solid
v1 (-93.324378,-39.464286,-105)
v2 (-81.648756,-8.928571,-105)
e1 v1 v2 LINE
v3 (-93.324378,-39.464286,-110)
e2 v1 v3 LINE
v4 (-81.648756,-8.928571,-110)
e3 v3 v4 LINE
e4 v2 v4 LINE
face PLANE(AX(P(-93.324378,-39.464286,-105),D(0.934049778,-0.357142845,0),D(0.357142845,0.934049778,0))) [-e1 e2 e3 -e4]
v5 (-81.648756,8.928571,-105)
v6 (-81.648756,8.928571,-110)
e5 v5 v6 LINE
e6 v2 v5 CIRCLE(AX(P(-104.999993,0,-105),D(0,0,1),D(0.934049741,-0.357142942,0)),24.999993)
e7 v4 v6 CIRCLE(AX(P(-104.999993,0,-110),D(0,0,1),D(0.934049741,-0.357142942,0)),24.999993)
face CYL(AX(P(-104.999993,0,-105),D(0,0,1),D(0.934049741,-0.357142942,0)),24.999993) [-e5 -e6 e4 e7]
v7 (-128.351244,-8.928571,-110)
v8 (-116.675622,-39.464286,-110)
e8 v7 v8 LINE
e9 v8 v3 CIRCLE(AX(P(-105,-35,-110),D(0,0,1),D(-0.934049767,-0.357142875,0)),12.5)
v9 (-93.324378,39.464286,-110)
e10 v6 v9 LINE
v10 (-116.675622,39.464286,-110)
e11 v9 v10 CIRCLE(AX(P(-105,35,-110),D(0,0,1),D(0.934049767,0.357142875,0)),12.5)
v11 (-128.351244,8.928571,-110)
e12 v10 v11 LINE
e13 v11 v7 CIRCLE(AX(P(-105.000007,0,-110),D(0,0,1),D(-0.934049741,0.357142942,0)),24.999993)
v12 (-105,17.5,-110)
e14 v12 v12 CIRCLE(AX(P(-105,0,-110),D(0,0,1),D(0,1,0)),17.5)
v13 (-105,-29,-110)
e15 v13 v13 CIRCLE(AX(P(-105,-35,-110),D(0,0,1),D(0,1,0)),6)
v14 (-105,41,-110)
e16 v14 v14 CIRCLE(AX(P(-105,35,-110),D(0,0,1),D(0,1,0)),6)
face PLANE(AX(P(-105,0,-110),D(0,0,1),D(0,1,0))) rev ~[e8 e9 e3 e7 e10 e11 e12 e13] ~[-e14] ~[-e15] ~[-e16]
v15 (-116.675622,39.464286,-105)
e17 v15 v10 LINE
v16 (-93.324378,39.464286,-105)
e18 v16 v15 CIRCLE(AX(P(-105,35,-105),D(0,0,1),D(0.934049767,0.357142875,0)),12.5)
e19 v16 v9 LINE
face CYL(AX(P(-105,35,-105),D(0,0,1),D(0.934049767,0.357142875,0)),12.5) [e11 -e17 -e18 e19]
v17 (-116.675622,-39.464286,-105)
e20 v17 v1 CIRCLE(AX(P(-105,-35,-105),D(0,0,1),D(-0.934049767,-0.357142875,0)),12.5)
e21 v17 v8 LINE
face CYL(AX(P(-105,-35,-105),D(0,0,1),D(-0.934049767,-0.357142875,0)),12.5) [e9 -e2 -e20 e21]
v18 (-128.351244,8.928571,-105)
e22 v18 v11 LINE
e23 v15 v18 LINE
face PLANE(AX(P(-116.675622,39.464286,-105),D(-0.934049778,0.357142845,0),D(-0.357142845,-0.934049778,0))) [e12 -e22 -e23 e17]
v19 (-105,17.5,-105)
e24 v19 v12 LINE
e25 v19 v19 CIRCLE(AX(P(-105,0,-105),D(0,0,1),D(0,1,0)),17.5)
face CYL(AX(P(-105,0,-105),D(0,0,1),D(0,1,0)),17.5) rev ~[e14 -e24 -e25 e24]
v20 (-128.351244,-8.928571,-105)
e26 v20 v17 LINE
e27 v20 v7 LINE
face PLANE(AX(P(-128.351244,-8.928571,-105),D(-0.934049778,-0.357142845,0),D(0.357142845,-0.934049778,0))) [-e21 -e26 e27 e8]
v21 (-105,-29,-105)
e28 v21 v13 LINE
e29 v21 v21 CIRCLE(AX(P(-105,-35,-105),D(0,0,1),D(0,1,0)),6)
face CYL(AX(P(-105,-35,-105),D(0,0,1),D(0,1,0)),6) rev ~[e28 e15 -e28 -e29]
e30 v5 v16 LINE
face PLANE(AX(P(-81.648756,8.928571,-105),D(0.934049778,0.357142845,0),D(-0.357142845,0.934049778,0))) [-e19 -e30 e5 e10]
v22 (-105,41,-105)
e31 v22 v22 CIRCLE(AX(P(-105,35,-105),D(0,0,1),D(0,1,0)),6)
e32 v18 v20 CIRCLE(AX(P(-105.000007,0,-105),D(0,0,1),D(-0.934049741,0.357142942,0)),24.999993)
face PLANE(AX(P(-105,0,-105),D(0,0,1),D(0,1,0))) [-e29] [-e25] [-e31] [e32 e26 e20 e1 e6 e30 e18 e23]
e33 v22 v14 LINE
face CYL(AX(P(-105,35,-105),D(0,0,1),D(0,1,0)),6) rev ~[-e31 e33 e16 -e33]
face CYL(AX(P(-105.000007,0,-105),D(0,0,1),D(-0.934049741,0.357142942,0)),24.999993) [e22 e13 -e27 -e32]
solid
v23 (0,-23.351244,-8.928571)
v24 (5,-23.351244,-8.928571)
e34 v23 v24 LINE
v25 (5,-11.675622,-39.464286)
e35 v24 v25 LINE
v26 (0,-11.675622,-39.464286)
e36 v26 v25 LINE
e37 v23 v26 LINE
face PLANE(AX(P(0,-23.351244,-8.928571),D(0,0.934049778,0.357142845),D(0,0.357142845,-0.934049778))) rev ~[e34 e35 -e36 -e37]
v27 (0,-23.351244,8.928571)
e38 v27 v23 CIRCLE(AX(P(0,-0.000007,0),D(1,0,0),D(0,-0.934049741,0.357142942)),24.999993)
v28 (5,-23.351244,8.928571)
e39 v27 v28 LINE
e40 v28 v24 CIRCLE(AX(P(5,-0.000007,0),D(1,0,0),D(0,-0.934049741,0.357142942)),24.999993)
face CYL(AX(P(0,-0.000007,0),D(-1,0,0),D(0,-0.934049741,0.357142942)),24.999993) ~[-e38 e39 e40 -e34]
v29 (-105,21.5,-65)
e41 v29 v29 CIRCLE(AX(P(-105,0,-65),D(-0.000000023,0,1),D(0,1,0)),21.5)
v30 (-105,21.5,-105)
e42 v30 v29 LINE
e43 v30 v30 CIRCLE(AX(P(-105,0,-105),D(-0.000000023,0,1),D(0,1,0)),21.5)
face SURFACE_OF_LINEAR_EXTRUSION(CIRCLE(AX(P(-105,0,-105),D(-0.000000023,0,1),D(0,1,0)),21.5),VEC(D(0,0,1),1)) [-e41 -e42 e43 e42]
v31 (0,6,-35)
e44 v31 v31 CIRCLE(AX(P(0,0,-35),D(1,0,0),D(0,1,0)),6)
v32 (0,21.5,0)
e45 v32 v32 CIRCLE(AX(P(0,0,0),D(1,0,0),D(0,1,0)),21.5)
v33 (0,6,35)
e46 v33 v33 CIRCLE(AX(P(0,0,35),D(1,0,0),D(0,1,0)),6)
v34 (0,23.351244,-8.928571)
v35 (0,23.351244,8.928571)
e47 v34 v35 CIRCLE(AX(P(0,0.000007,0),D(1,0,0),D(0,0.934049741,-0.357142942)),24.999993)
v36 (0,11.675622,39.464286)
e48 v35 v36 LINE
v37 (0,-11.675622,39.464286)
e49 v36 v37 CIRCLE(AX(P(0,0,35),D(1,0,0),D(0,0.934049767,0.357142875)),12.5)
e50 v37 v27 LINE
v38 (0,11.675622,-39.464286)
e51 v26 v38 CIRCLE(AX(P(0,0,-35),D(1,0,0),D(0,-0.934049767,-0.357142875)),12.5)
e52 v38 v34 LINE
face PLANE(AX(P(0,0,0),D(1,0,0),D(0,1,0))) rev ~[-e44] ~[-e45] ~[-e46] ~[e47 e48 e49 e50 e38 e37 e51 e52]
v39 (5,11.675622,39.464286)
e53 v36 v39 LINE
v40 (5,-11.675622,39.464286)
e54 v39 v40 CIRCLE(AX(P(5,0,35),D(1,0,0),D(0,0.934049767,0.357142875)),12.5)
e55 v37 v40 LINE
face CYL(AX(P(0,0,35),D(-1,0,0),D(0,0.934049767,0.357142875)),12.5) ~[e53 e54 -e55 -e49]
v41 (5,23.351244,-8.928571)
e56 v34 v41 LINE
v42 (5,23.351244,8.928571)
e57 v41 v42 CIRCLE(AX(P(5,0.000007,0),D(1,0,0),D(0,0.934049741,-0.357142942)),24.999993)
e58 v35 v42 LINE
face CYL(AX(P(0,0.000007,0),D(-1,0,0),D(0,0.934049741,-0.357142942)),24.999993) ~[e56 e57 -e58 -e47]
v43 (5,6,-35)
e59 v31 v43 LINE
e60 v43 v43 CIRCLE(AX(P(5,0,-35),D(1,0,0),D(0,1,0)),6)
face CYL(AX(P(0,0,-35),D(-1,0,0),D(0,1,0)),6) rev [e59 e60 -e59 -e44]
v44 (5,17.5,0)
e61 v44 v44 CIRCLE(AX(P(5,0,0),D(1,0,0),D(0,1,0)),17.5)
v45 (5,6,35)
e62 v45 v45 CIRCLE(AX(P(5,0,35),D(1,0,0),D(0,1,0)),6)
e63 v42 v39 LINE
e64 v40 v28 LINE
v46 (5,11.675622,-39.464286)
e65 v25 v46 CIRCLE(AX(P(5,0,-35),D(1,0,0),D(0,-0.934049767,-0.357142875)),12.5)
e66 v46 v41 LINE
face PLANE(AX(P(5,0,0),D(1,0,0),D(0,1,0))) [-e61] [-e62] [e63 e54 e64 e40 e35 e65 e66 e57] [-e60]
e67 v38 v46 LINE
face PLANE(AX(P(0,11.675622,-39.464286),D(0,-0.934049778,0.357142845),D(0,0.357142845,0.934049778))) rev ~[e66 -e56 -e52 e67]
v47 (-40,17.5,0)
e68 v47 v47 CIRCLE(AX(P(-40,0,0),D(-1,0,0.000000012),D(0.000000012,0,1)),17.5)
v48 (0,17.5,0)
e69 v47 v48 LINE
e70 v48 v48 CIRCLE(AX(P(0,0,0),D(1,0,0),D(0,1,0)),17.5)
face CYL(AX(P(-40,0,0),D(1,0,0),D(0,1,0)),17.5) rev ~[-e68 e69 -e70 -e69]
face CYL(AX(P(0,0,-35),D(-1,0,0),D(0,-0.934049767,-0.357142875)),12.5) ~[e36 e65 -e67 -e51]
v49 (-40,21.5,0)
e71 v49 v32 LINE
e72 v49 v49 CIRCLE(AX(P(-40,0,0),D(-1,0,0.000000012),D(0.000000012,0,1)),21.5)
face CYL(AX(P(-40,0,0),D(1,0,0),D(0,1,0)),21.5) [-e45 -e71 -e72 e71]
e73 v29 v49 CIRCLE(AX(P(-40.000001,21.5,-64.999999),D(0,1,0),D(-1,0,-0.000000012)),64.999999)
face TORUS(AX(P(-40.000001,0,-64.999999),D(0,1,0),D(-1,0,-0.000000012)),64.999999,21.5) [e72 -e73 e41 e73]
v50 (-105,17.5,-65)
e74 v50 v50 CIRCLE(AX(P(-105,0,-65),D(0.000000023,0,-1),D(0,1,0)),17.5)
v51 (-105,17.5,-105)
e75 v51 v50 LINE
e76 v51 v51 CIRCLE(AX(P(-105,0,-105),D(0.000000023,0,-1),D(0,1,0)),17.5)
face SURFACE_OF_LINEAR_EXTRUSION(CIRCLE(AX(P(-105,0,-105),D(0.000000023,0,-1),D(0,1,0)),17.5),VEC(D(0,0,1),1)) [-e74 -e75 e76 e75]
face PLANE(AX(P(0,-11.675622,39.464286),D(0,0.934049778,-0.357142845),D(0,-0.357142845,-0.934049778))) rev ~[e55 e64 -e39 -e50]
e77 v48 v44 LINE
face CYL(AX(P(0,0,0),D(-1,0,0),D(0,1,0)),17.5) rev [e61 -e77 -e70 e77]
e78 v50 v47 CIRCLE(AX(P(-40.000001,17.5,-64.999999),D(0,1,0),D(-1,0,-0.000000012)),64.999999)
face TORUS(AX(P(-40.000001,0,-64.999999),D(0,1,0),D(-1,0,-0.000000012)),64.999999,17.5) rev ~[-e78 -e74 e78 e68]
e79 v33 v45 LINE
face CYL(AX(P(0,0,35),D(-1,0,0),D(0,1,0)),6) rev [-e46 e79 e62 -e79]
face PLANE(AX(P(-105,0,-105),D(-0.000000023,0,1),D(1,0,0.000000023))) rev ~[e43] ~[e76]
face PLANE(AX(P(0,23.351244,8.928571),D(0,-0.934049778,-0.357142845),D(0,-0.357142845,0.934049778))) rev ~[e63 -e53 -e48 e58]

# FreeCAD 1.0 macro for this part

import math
import FreeCAD as App
import Part
import Sketcher

V = App.Vector

doc = App.newDocument("Part")
params = doc.addObject("Spreadsheet::Sheet", "Params")
for row, (alias, value) in enumerate([
    ("sketch1_diameter", "43 mm"),
    ("sketch1_diameter2", "35 mm"),
    ("sketch2_radius", "64.999999 mm"),
    ("sketch2_width", "40 mm"),
    ("sketch3_diameter", "12 mm"),
    ("sketch3_diameter2", "35 mm"),
    ("sketch3_radius", "12.5 mm"),
    ("pad1_length", "5 mm"),
    ("sketch4_diameter", "12 mm"),
    ("sketch4_diameter2", "35 mm"),
    ("sketch4_radius", "12.5 mm"),
    ("pad2_length", "5 mm"),
], start=1):
    params.set(f"A{row}", alias)
    params.set(f"B{row}", "=" + value)
    params.setAlias(f"B{row}", alias)

body = doc.addObject("PartDesign::Body", "Body")

# Sketch on YZ plane
sketch1 = body.newObject("Sketcher::SketchObject", "Sketch")
sketch1.AttachmentSupport = (doc.getObject("YZ_Plane"), [""])
sketch1.MapMode = "FlatFace"
sketch1.addGeometry(Part.Circle(V(0, 0, 0), V(0, 0, 1), 21.5), False)
sketch1.addGeometry(Part.Circle(V(0, 0, 0), V(0, 0, 1), 17.5), False)
sketch1.addConstraint(Sketcher.Constraint("Coincident", 0, 3, -1, 1))
sketch1.addConstraint(Sketcher.Constraint("Coincident", 1, 3, -1, 1))
sketch1.addConstraint(Sketcher.Constraint("Diameter", 0, 43.0))
sketch1.addConstraint(Sketcher.Constraint("Diameter", 1, 35.0))
sketch1.setExpression("Constraints[2]", "Params.sketch1_diameter")
sketch1.setExpression("Constraints[3]", "Params.sketch1_diameter2")

# Sketch on XZ plane
sketch2 = body.newObject("Sketcher::SketchObject", "Sketch001")
sketch2.AttachmentSupport = (doc.getObject("XZ_Plane"), [""])
sketch2.MapMode = "FlatFace"
sketch2.addGeometry(Part.LineSegment(V(-105, -105, 0), V(-105, -65, 0)), False)
sketch2.addGeometry(Part.ArcOfCircle(Part.Circle(V(-40.000001, -64.999999, 0), V(0, 0, 1), 64.999999), math.radians(89.999999), math.radians(180.000001)), False)
sketch2.addGeometry(Part.LineSegment(V(-40, 0, 0), V(0, 0, 0)), False)
sketch2.addConstraint(Sketcher.Constraint("Tangent", 0, 2, 1, 2))
sketch2.addConstraint(Sketcher.Constraint("Tangent", 1, 1, 2, 1))
sketch2.addConstraint(Sketcher.Constraint("Vertical", 0))
sketch2.addConstraint(Sketcher.Constraint("Horizontal", 2))
sketch2.addConstraint(Sketcher.Constraint("Coincident", 2, 2, -1, 1))
sketch2.addConstraint(Sketcher.Constraint("Equal", 2, 0))
sketch2.addConstraint(Sketcher.Constraint("Radius", 1, 64.999999))
sketch2.addConstraint(Sketcher.Constraint("DistanceX", 2, 1, 2, 2, 40.0))
sketch2.setExpression("Constraints[6]", "Params.sketch2_radius")
sketch2.setExpression("Constraints[7]", "Params.sketch2_width")
doc.recompute()

additivepipe = body.newObject("PartDesign::AdditivePipe", "AdditivePipe")
additivepipe.Profile = sketch1
additivepipe.Spine = (sketch2, ["Edge1", "Edge2", "Edge3"])

# Sketch on YZ plane
sketch3 = body.newObject("Sketcher::SketchObject", "Sketch002")
sketch3.AttachmentSupport = (doc.getObject("YZ_Plane"), [""])
sketch3.MapMode = "FlatFace"
sketch3.addGeometry(Part.LineSegment(V(-11.675622, 39.464286, 0), V(-23.351244, 8.928571, 0)), False)
sketch3.addGeometry(Part.ArcOfCircle(Part.Circle(V(-0.000007, 0, 0), V(0, 0, 1), 24.999993), math.radians(159.075162), math.radians(200.924838)), False)
sketch3.addGeometry(Part.LineSegment(V(-23.351244, -8.928571, 0), V(-11.675622, -39.464286, 0)), False)
sketch3.addGeometry(Part.ArcOfCircle(Part.Circle(V(0, -35, 0), V(0, 0, 1), 12.5), math.radians(-159.075166), math.radians(-20.924834)), False)
sketch3.addGeometry(Part.LineSegment(V(11.675622, -39.464286, 0), V(23.351244, -8.928571, 0)), False)
sketch3.addGeometry(Part.ArcOfCircle(Part.Circle(V(0.000007, 0, 0), V(0, 0, 1), 24.999993), math.radians(-20.924838), math.radians(20.924838)), False)
sketch3.addGeometry(Part.LineSegment(V(23.351244, 8.928571, 0), V(11.675622, 39.464286, 0)), False)
sketch3.addGeometry(Part.ArcOfCircle(Part.Circle(V(0, 35, 0), V(0, 0, 1), 12.5), math.radians(20.924834), math.radians(159.075166)), False)
sketch3.addGeometry(Part.Circle(V(0, -35, 0), V(0, 0, 1), 6), False)
sketch3.addGeometry(Part.Circle(V(0, 0, 0), V(0, 0, 1), 17.5), False)
sketch3.addGeometry(Part.Circle(V(0, 35, 0), V(0, 0, 1), 6), False)
sketch3.addConstraint(Sketcher.Constraint("Tangent", 0, 2, 1, 1))
sketch3.addConstraint(Sketcher.Constraint("Tangent", 1, 2, 2, 1))
sketch3.addConstraint(Sketcher.Constraint("Tangent", 2, 2, 3, 1))
sketch3.addConstraint(Sketcher.Constraint("Tangent", 3, 2, 4, 1))
sketch3.addConstraint(Sketcher.Constraint("Tangent", 4, 2, 5, 1))
sketch3.addConstraint(Sketcher.Constraint("Tangent", 5, 2, 6, 1))
sketch3.addConstraint(Sketcher.Constraint("Tangent", 6, 2, 7, 1))
sketch3.addConstraint(Sketcher.Constraint("Tangent", 7, 2, 0, 1))
sketch3.addConstraint(Sketcher.Constraint("Coincident", 1, 3, -1, 1))
sketch3.addConstraint(Sketcher.Constraint("Coincident", 5, 3, -1, 1))
sketch3.addConstraint(Sketcher.Constraint("Coincident", 9, 3, -1, 1))
sketch3.addConstraint(Sketcher.Constraint("Coincident", 8, 3, 3, 3))
sketch3.addConstraint(Sketcher.Constraint("Coincident", 10, 3, 7, 3))
sketch3.addConstraint(Sketcher.Constraint("Equal", 1, 5))
sketch3.addConstraint(Sketcher.Constraint("Equal", 3, 7))
sketch3.addConstraint(Sketcher.Constraint("Equal", 8, 10))
sketch3.addConstraint(Sketcher.Constraint("Symmetric", 3, 3, 7, 3, -1, 1))
sketch3.addConstraint(Sketcher.Constraint("PointOnObject", 3, 3, -2))
sketch3.addConstraint(Sketcher.Constraint("Diameter", 8, 12.0))
sketch3.addConstraint(Sketcher.Constraint("Diameter", 9, 35.0))
sketch3.addConstraint(Sketcher.Constraint("Radius", 3, 12.5))
sketch3.addConstraint(Sketcher.Constraint("DistanceY", 3, 3, -1, 1, 35.0))
sketch3.addConstraint(Sketcher.Constraint("Radius", 1, 24.999993))
sketch3.setExpression("Constraints[18]", "Params.sketch3_diameter")
sketch3.setExpression("Constraints[19]", "Params.sketch3_diameter2")
sketch3.setExpression("Constraints[20]", "Params.sketch3_radius")
pad1 = body.newObject("PartDesign::Pad", "Pad")
pad1.Profile = sketch3
pad1.setExpression("Length", "Params.pad1_length")
body2 = doc.addObject("PartDesign::Body", "Body001")

# Sketch on XY plane
sketch4 = body2.newObject("Sketcher::SketchObject", "Sketch003")
sketch4.AttachmentSupport = (doc.getObject("XY_Plane001"), [""])
sketch4.MapMode = "FlatFace"
sketch4.AttachmentOffset = App.Placement(V(0, 0, -105), App.Rotation())
sketch4.addGeometry(Part.LineSegment(V(-93.324378, -39.464286, 0), V(-81.648756, -8.928571, 0)), False)
sketch4.addGeometry(Part.ArcOfCircle(Part.Circle(V(-104.999993, 0, 0), V(0, 0, 1), 24.999993), math.radians(-20.924838), math.radians(20.924838)), False)
sketch4.addGeometry(Part.LineSegment(V(-81.648756, 8.928571, 0), V(-93.324378, 39.464286, 0)), False)
sketch4.addGeometry(Part.ArcOfCircle(Part.Circle(V(-105, 35, 0), V(0, 0, 1), 12.5), math.radians(20.924834), math.radians(159.075166)), False)
sketch4.addGeometry(Part.LineSegment(V(-116.675622, 39.464286, 0), V(-128.351244, 8.928571, 0)), False)
sketch4.addGeometry(Part.ArcOfCircle(Part.Circle(V(-105.000007, 0, 0), V(0, 0, 1), 24.999993), math.radians(159.075162), math.radians(200.924838)), False)
sketch4.addGeometry(Part.LineSegment(V(-128.351244, -8.928571, 0), V(-116.675622, -39.464286, 0)), False)
sketch4.addGeometry(Part.ArcOfCircle(Part.Circle(V(-105, -35, 0), V(0, 0, 1), 12.5), math.radians(-159.075166), math.radians(-20.924834)), False)
sketch4.addGeometry(Part.Circle(V(-105, -35, 0), V(0, 0, 1), 6), False)
sketch4.addGeometry(Part.Circle(V(-105, 0, 0), V(0, 0, 1), 17.5), False)
sketch4.addGeometry(Part.Circle(V(-105, 35, 0), V(0, 0, 1), 6), False)
sketch4.addConstraint(Sketcher.Constraint("Tangent", 0, 2, 1, 1))
sketch4.addConstraint(Sketcher.Constraint("Tangent", 1, 2, 2, 1))
sketch4.addConstraint(Sketcher.Constraint("Tangent", 2, 2, 3, 1))
sketch4.addConstraint(Sketcher.Constraint("Tangent", 3, 2, 4, 1))
sketch4.addConstraint(Sketcher.Constraint("Tangent", 4, 2, 5, 1))
sketch4.addConstraint(Sketcher.Constraint("Tangent", 5, 2, 6, 1))
sketch4.addConstraint(Sketcher.Constraint("Tangent", 6, 2, 7, 1))
sketch4.addConstraint(Sketcher.Constraint("Tangent", 7, 2, 0, 1))
sketch4.addConstraint(Sketcher.Constraint("Coincident", 8, 3, 7, 3))
sketch4.addConstraint(Sketcher.Constraint("Coincident", 9, 3, 1, 3))
sketch4.addConstraint(Sketcher.Constraint("Coincident", 10, 3, 3, 3))
sketch4.addConstraint(Sketcher.Constraint("Equal", 1, 5))
sketch4.addConstraint(Sketcher.Constraint("Equal", 3, 7))
sketch4.addConstraint(Sketcher.Constraint("Equal", 8, 10))
sketch4.addConstraint(Sketcher.Constraint("Symmetric", 3, 3, 7, 3, -1))
sketch4.addConstraint(Sketcher.Constraint("PointOnObject", 1, 3, -1))
sketch4.addConstraint(Sketcher.Constraint("PointOnObject", 5, 3, -1))
sketch4.addConstraint(Sketcher.Constraint("Parallel", 0, 4))
sketch4.addConstraint(Sketcher.Constraint("Vertical", 8, 3, 9, 3))
sketch4.addConstraint(Sketcher.Constraint("Diameter", 8, 12.0))
sketch4.addConstraint(Sketcher.Constraint("Diameter", 9, 35.0))
sketch4.addConstraint(Sketcher.Constraint("Radius", 3, 12.5))
sketch4.addConstraint(Sketcher.Constraint("DistanceX", 3, 3, -1, 1, 105.0))
sketch4.addConstraint(Sketcher.Constraint("DistanceY", -1, 1, 3, 3, 35.0))
sketch4.addConstraint(Sketcher.Constraint("Radius", 1, 24.999993))
sketch4.setExpression("Constraints[19]", "Params.sketch4_diameter")
sketch4.setExpression("Constraints[20]", "Params.sketch4_diameter2")
sketch4.setExpression("Constraints[21]", "Params.sketch4_radius")
pad2 = body2.newObject("PartDesign::Pad", "Pad001")
pad2.Profile = sketch4
pad2.setExpression("Length", "Params.pad2_length")
pad2.Reversed = True

doc.recompute()
